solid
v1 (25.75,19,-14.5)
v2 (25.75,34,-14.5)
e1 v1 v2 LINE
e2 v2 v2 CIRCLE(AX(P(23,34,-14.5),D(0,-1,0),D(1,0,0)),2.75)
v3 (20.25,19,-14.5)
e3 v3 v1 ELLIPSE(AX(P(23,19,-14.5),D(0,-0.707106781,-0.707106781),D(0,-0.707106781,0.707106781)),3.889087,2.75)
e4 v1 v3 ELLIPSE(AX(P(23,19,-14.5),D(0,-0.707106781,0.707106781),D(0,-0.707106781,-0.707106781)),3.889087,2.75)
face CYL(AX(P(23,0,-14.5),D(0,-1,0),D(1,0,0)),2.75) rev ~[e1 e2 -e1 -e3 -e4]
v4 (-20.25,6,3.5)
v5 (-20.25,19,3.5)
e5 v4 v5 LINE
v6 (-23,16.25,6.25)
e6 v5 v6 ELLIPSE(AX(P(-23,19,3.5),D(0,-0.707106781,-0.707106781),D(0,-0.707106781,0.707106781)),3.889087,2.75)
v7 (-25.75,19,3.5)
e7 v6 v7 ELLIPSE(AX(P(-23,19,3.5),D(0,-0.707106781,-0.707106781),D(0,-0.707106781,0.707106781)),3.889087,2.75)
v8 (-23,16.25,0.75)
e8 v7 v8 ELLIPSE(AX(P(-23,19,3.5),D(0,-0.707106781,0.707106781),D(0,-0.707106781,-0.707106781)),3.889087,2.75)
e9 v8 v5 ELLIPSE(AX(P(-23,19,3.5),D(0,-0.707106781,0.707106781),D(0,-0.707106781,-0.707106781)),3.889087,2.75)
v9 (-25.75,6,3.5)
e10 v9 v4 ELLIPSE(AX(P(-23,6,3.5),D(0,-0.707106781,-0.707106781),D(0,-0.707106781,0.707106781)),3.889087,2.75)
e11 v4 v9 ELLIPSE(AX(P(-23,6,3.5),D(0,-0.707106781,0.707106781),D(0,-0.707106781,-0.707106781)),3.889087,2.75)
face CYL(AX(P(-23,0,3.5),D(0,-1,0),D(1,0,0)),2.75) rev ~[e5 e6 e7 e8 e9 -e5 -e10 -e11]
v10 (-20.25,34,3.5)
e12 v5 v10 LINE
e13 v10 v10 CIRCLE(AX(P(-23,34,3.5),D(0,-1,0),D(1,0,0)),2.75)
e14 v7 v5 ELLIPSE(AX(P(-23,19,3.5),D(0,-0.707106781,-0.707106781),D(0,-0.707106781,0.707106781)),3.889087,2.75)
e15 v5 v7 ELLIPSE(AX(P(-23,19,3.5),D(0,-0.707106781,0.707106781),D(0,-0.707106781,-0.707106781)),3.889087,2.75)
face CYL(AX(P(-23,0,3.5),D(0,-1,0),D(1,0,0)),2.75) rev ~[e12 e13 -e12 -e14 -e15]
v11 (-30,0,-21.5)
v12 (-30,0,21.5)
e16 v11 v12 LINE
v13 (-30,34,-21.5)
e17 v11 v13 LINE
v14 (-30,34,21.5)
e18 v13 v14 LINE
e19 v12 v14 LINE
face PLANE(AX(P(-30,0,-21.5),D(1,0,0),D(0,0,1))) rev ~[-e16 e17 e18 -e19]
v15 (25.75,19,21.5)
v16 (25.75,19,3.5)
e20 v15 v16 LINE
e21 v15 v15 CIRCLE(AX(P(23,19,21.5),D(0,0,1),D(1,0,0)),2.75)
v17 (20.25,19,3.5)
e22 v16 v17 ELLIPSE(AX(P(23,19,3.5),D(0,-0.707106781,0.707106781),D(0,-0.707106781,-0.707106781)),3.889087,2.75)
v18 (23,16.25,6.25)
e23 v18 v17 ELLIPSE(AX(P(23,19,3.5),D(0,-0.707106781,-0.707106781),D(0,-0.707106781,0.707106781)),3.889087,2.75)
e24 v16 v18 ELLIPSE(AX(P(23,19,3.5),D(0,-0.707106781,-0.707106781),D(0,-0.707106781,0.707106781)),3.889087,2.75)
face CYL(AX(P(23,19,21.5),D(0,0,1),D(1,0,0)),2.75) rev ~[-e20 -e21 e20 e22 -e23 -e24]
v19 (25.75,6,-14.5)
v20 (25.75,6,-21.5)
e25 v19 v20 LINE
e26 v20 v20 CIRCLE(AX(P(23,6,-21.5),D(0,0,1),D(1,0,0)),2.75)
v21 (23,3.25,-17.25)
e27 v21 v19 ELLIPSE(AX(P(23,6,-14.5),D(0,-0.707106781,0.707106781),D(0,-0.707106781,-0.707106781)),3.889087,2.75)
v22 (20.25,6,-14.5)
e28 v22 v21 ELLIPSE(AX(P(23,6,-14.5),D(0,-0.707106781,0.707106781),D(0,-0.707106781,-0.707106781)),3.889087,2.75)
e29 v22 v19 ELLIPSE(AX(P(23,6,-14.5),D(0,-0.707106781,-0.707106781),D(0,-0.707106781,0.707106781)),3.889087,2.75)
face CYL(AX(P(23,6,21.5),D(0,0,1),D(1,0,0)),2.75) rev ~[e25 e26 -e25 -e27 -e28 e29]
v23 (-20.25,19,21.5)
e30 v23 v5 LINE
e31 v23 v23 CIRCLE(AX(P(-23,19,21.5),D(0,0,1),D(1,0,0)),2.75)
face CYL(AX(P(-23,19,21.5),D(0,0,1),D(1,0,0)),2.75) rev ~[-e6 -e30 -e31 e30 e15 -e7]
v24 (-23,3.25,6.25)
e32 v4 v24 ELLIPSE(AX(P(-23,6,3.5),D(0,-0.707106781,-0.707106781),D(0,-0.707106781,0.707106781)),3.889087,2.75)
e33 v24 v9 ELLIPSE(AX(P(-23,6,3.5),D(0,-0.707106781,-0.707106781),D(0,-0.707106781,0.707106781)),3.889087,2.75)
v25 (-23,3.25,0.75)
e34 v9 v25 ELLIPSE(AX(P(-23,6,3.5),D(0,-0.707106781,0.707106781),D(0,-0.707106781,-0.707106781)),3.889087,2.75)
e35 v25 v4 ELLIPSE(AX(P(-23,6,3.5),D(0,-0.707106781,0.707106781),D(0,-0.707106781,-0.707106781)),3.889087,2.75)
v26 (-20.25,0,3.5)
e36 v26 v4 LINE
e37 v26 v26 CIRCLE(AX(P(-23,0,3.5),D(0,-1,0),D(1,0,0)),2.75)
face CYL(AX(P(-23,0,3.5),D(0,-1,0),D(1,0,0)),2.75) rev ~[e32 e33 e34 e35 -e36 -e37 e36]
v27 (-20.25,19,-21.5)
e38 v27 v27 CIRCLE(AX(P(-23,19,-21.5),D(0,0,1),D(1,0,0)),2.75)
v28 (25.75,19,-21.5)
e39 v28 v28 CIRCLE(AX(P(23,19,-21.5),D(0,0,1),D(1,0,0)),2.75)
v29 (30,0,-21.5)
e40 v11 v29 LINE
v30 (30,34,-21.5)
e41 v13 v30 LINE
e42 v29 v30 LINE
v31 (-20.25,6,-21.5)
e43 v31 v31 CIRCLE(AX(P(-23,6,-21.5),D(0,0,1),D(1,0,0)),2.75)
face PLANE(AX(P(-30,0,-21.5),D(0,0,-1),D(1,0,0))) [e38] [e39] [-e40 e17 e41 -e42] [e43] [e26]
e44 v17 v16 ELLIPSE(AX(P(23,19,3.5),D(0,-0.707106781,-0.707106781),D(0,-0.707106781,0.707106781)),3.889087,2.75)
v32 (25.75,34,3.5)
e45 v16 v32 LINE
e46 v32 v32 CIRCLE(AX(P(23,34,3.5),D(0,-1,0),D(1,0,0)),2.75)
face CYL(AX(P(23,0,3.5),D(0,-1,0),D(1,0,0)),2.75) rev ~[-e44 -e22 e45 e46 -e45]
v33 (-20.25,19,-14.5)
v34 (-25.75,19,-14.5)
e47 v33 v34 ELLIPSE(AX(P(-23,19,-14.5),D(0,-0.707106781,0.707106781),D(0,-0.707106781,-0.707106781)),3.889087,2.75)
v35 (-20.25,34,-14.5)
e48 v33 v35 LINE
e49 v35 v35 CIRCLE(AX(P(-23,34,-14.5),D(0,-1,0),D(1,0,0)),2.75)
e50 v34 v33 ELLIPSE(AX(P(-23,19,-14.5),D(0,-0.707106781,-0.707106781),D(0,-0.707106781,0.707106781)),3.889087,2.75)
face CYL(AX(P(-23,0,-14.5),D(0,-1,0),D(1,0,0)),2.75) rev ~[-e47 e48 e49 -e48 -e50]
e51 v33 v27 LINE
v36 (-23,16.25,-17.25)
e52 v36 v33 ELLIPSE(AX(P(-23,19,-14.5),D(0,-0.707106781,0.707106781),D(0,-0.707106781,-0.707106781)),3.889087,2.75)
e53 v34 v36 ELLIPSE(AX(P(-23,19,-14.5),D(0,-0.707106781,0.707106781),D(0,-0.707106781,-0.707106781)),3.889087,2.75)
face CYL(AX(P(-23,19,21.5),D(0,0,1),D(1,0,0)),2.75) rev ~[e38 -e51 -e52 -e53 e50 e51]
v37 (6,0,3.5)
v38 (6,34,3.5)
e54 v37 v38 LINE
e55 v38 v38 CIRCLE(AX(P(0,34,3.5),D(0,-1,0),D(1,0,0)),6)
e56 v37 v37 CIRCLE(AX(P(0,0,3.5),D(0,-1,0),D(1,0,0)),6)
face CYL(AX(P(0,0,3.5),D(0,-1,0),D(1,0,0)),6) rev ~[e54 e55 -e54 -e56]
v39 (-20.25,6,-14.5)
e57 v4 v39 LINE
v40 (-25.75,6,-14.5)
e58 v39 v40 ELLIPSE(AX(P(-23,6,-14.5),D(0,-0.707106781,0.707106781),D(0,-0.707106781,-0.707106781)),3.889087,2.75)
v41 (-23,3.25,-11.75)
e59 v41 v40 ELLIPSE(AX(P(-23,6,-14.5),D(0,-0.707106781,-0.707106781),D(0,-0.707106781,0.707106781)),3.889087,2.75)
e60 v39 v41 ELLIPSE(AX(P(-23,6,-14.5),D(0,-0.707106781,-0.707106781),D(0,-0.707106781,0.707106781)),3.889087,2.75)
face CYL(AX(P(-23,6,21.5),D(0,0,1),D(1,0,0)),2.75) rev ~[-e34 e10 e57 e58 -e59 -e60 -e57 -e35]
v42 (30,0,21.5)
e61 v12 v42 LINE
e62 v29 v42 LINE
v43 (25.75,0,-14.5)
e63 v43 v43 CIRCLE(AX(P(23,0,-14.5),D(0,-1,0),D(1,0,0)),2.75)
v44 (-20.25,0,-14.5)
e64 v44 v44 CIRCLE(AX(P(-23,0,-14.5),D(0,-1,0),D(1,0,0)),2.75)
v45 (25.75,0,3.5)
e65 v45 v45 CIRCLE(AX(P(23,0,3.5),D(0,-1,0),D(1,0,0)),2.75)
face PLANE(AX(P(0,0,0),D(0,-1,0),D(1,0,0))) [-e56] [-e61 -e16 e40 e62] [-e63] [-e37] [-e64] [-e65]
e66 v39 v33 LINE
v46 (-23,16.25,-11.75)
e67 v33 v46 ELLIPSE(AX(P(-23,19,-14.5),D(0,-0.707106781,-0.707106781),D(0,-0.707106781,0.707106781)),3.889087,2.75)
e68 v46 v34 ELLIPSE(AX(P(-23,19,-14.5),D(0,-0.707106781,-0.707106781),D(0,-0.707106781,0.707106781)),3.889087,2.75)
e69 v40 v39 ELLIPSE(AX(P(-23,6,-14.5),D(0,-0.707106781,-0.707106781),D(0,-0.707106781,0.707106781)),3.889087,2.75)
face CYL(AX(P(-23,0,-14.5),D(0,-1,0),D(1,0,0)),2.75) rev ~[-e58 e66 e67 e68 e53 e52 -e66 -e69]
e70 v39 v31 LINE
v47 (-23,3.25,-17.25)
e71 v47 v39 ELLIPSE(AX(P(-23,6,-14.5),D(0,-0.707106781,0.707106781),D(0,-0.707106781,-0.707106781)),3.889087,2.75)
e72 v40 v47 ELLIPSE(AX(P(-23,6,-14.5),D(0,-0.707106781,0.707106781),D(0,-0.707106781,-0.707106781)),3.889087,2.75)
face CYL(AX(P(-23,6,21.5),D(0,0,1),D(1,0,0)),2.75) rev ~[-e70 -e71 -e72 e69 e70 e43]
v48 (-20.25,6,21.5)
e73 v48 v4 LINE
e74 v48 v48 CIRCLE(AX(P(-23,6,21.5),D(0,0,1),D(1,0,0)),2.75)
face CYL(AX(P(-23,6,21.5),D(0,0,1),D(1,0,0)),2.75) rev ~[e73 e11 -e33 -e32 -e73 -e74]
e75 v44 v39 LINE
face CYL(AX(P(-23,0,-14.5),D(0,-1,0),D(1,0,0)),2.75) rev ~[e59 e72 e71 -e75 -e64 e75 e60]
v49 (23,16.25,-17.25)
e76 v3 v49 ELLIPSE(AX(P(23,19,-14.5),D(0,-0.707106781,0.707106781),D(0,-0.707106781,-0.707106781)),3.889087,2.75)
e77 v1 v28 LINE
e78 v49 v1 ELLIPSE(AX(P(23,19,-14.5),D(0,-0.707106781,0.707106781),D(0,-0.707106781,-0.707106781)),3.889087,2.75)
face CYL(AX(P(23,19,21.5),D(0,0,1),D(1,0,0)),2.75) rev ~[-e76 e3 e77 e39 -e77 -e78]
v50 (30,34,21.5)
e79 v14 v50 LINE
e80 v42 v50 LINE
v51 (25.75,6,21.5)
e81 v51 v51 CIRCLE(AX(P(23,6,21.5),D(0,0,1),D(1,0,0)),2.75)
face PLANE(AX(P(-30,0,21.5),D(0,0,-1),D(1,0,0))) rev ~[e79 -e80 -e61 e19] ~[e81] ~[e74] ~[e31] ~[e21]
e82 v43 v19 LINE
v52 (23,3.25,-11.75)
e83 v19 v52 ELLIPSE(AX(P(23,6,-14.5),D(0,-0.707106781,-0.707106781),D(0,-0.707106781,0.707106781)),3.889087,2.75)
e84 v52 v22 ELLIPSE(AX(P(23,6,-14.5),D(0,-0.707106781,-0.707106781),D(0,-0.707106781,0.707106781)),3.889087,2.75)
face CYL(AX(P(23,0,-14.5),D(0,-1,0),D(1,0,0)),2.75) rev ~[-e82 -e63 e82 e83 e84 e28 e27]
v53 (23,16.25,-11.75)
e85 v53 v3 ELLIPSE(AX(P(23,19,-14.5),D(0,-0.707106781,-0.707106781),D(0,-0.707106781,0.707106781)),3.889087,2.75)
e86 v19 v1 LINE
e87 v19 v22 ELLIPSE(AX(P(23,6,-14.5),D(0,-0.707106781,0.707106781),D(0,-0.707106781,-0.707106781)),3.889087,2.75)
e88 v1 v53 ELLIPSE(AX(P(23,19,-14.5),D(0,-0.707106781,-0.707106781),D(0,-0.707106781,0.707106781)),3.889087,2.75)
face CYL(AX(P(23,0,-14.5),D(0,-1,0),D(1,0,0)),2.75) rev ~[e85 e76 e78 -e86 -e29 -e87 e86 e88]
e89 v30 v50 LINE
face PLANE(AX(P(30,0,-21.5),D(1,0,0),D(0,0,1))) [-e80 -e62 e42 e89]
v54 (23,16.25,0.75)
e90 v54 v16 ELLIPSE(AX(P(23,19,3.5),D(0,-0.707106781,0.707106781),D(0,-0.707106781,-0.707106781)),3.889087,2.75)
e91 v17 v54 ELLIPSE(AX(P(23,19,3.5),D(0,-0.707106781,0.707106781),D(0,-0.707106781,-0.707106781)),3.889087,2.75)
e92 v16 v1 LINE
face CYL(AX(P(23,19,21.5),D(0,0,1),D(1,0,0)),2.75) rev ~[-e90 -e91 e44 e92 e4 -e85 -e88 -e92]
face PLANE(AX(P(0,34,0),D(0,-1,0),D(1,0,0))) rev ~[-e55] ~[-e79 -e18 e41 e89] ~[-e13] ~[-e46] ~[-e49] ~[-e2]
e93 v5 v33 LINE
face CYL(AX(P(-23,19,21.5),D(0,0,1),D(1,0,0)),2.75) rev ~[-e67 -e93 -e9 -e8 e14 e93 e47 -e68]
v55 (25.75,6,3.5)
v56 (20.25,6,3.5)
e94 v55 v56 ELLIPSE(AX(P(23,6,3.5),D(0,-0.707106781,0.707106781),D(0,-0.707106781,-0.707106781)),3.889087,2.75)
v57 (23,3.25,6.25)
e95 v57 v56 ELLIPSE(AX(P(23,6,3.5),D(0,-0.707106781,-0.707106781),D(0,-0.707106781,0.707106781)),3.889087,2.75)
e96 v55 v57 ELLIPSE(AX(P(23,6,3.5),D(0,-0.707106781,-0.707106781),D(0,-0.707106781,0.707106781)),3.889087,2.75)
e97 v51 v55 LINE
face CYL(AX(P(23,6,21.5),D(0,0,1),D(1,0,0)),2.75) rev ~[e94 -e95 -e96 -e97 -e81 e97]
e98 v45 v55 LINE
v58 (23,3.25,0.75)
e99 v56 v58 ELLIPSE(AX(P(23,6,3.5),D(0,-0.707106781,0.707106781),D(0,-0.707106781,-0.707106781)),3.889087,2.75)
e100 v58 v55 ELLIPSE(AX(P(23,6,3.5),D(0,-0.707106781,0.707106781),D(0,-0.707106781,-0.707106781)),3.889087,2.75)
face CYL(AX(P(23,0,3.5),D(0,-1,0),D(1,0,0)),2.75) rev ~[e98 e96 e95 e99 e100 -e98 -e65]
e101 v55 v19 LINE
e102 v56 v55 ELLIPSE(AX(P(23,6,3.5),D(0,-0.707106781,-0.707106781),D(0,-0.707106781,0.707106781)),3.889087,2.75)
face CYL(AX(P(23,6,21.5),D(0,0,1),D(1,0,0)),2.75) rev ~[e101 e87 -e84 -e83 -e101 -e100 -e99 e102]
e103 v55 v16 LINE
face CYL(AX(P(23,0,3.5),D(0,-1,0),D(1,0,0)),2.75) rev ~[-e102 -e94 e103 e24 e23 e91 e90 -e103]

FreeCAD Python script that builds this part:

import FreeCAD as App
import Part
import Sketcher

V = App.Vector

doc = App.newDocument("Part")
body = doc.addObject("PartDesign::Body", "Body")

# Sketch on XZ plane
sketch1 = body.newObject("Sketcher::SketchObject", "Sketch")
sketch1.AttachmentSupport = (doc.getObject("XZ_Plane"), [""])
sketch1.MapMode = "FlatFace"
sketch1.addGeometry(Part.LineSegment(V(-30, 21.5, 0), V(-30, -21.5, 0)), False)
sketch1.addGeometry(Part.LineSegment(V(-30, -21.5, 0), V(30, -21.5, 0)), False)
sketch1.addGeometry(Part.LineSegment(V(30, -21.5, 0), V(30, 21.5, 0)), False)
sketch1.addGeometry(Part.LineSegment(V(30, 21.5, 0), V(-30, 21.5, 0)), False)
sketch1.addGeometry(Part.Circle(V(0, 3.5, 0), V(0, 0, 1), 6), False)
sketch1.addConstraint(Sketcher.Constraint("Coincident", 0, 2, 1, 1))
sketch1.addConstraint(Sketcher.Constraint("Coincident", 1, 2, 2, 1))
sketch1.addConstraint(Sketcher.Constraint("Coincident", 2, 2, 3, 1))
sketch1.addConstraint(Sketcher.Constraint("Coincident", 3, 2, 0, 1))
sketch1.addConstraint(Sketcher.Constraint("Vertical", 0))
sketch1.addConstraint(Sketcher.Constraint("Horizontal", 1))
sketch1.addConstraint(Sketcher.Constraint("Vertical", 2))
sketch1.addConstraint(Sketcher.Constraint("Horizontal", 3))
sketch1.addConstraint(Sketcher.Constraint("Symmetric", 0, 2, 2, 2, -1, 1))
sketch1.addConstraint(Sketcher.Constraint("PointOnObject", 4, 3, -2))
sketch1.addConstraint(Sketcher.Constraint("Diameter", 4, 12.0))
sketch1.addConstraint(Sketcher.Constraint("DistanceX", 1, 1, 1, 2, 60.0))
sketch1.addConstraint(Sketcher.Constraint("DistanceY", 0, 2, 0, 1, 43.0))
sketch1.addConstraint(Sketcher.Constraint("DistanceY", 0, 2, 4, 3, 25.0))
pad1 = body.newObject("PartDesign::Pad", "Pad")
pad1.Profile = sketch1
pad1.Length = 34
pad1.Reversed = True

# Sketch on XZ plane
sketch2 = body.newObject("Sketcher::SketchObject", "Sketch001")
sketch2.AttachmentSupport = (doc.getObject("XZ_Plane"), [""])
sketch2.MapMode = "FlatFace"
sketch2.addGeometry(Part.Circle(V(23, 3.5, 0), V(0, 0, 1), 2.75), False)
sketch2.addGeometry(Part.Circle(V(-23, -14.5, 0), V(0, 0, 1), 2.75), False)
sketch2.addGeometry(Part.Circle(V(23, -14.5, 0), V(0, 0, 1), 2.75), False)
sketch2.addGeometry(Part.Circle(V(-23, 3.5, 0), V(0, 0, 1), 2.75), False)
sketch2.addConstraint(Sketcher.Constraint("Equal", 0, 1))
sketch2.addConstraint(Sketcher.Constraint("Equal", 1, 2))
sketch2.addConstraint(Sketcher.Constraint("Equal", 2, 3))
sketch2.addConstraint(Sketcher.Constraint("Symmetric", 1, 3, 2, 3, -2))
sketch2.addConstraint(Sketcher.Constraint("Symmetric", 0, 3, 3, 3, -2))
sketch2.addConstraint(Sketcher.Constraint("Vertical", 0, 3, 2, 3))
sketch2.addConstraint(Sketcher.Constraint("Diameter", 0, 5.5))
sketch2.addConstraint(Sketcher.Constraint("DistanceX", -1, 1, 0, 3, 23.0))
sketch2.addConstraint(Sketcher.Constraint("DistanceY", 1, 3, 0, 3, 18.0))
sketch2.addConstraint(Sketcher.Constraint("DistanceY", -1, 1, 0, 3, 3.5))
pocket1 = body.newObject("PartDesign::Pocket", "Pocket")
pocket1.Profile = sketch2
pocket1.Type = "ThroughAll"

# Sketch on XY plane
sketch3 = body.newObject("Sketcher::SketchObject", "Sketch002")
sketch3.AttachmentSupport = (doc.getObject("XY_Plane"), [""])
sketch3.MapMode = "FlatFace"
sketch3.AttachmentOffset = App.Placement(V(0, 0, 21.5), App.Rotation())
sketch3.addGeometry(Part.Circle(V(-23, 19, 0), V(0, 0, 1), 2.75), False)
sketch3.addGeometry(Part.Circle(V(-23, 6, 0), V(0, 0, 1), 2.75), False)
sketch3.addGeometry(Part.Circle(V(23, 6, 0), V(0, 0, 1), 2.75), False)
sketch3.addGeometry(Part.Circle(V(23, 19, 0), V(0, 0, 1), 2.75), False)
sketch3.addConstraint(Sketcher.Constraint("Equal", 0, 1))
sketch3.addConstraint(Sketcher.Constraint("Equal", 1, 2))
sketch3.addConstraint(Sketcher.Constraint("Equal", 2, 3))
sketch3.addConstraint(Sketcher.Constraint("Symmetric", 1, 3, 2, 3, -2))
sketch3.addConstraint(Sketcher.Constraint("Symmetric", 0, 3, 3, 3, -2))
sketch3.addConstraint(Sketcher.Constraint("Vertical", 0, 3, 1, 3))
sketch3.addConstraint(Sketcher.Constraint("Diameter", 0, 5.5))
sketch3.addConstraint(Sketcher.Constraint("DistanceX", 0, 3, -1, 1, 23.0))
sketch3.addConstraint(Sketcher.Constraint("DistanceY", -1, 1, 0, 3, 19.0))
sketch3.addConstraint(Sketcher.Constraint("DistanceY", -1, 1, 1, 3, 6.0))
pocket2 = body.newObject("PartDesign::Pocket", "Pocket001")
pocket2.Profile = sketch3
pocket2.Type = "ThroughAll"

doc.recompute()
